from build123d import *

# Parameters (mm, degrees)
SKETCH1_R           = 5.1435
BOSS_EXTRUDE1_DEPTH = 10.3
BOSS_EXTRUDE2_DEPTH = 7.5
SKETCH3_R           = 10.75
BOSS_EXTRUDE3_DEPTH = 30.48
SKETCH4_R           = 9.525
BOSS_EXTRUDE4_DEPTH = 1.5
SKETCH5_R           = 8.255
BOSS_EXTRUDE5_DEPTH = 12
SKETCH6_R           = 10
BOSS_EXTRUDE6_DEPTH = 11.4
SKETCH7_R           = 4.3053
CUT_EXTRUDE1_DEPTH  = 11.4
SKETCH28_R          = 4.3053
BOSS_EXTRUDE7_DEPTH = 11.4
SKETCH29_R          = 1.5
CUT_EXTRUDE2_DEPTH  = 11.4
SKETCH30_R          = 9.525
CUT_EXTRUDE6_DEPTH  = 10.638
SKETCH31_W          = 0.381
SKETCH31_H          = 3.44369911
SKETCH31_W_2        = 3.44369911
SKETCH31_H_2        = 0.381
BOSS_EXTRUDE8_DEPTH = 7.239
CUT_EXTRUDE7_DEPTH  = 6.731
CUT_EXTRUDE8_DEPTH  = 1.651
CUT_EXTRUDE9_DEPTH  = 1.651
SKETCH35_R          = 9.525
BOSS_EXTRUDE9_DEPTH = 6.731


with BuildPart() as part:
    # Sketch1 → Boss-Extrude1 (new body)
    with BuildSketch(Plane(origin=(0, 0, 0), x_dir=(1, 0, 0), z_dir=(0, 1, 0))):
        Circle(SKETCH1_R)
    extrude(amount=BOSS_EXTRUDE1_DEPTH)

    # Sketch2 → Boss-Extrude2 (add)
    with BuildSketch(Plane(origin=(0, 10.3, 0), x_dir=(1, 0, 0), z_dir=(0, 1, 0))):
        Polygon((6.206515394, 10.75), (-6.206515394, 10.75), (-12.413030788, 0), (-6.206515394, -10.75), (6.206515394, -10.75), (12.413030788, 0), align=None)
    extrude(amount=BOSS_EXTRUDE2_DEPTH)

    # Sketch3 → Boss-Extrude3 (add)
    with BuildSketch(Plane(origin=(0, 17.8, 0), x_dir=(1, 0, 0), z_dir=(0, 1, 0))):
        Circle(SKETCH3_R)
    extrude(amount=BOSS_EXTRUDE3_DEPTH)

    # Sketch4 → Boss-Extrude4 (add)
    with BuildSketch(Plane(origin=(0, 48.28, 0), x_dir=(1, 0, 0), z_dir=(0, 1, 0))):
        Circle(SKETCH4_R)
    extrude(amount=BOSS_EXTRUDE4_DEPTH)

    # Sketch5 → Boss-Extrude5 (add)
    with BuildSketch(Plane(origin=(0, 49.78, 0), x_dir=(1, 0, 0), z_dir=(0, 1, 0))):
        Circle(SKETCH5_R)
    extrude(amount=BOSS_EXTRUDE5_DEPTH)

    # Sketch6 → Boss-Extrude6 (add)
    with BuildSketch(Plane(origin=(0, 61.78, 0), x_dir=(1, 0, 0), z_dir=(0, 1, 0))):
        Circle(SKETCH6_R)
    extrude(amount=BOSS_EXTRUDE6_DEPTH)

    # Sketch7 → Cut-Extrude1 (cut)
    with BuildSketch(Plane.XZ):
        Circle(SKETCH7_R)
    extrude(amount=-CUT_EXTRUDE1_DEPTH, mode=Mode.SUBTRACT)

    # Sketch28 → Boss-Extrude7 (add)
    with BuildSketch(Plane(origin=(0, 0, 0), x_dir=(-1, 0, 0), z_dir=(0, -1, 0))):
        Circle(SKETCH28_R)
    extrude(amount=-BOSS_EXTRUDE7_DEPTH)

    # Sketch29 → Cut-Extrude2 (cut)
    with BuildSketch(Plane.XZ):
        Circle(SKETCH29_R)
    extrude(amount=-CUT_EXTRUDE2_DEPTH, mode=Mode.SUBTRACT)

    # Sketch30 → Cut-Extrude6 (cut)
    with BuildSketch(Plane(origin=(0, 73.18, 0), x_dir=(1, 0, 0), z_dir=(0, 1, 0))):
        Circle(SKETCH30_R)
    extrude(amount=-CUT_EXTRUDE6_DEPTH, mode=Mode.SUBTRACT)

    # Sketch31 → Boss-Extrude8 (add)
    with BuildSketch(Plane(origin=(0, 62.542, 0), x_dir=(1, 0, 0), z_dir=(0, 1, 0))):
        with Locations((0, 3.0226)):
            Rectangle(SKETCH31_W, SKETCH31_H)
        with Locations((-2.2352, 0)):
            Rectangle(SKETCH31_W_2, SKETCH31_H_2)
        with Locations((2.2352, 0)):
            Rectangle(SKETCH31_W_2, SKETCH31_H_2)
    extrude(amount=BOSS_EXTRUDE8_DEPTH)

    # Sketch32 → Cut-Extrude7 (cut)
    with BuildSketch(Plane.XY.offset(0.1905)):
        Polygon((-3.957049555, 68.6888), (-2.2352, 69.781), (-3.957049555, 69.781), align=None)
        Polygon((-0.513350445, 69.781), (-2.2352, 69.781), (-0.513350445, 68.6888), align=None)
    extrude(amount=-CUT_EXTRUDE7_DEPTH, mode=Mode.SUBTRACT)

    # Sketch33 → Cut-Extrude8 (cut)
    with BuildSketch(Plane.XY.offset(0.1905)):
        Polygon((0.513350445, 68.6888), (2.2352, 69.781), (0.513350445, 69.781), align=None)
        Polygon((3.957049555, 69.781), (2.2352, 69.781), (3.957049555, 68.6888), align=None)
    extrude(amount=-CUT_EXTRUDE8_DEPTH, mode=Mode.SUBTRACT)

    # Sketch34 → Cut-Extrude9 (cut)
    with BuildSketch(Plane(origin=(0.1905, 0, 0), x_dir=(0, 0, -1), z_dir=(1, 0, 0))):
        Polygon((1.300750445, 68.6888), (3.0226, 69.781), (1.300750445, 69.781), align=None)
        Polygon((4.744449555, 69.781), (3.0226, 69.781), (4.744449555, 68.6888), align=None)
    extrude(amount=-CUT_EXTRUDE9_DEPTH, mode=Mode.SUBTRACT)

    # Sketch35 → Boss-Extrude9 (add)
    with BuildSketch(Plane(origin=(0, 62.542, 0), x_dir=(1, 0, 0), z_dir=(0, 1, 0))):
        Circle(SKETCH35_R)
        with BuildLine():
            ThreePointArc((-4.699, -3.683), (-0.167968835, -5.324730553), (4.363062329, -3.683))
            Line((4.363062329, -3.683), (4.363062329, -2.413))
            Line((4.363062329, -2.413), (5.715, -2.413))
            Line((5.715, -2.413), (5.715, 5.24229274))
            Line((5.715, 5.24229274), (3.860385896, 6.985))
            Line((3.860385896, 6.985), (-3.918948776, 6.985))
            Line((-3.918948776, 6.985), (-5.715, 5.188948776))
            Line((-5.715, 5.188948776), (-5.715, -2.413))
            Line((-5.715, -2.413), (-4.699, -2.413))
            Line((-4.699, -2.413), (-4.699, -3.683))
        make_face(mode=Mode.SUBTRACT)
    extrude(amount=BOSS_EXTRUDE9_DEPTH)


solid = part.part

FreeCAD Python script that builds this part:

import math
import FreeCAD as App
import Part
import Sketcher

V = App.Vector
Q = App.Units.Quantity

doc = App.newDocument("Part")
body = doc.addObject("PartDesign::Body", "Body")

sketch1 = doc.addObject("Sketcher::SketchObject", "Sketch")
body.addObject(sketch1)
sketch1.AttachmentSupport = (doc.XZ_Plane, [""])
sketch1.MapMode = "FlatFace"
sketch1.addGeometry(Part.Circle(V(0, 0, 0), V(0, 0, 1), 5), False)
sketch1.addConstraint([
    Sketcher.Constraint("Coincident", 0, 3, -1, 1),
    Sketcher.Constraint("Diameter", 0, Q("0.405 in")),
])
pad1 = doc.addObject("PartDesign::Pad", "Pad")
body.addObject(pad1)
pad1.Profile = sketch1
pad1.Length = 10.3
pad1.Reversed = True

sketch2 = doc.addObject("Sketcher::SketchObject", "Sketch001")
body.addObject(sketch2)
sketch2.AttachmentSupport = (doc.XZ_Plane, [""])
sketch2.MapMode = "FlatFace"
sketch2.AttachmentOffset = App.Placement(V(0, 0, -10.3), App.Rotation())
sketch2.addGeometry([
    Part.LineSegment(V(6, -11, 0), V(-6, -11, 0)),
    Part.LineSegment(V(-6, -11, 0), V(-12, 0, 0)),
    Part.LineSegment(V(-12, 0, 0), V(-6, 11, 0)),
    Part.LineSegment(V(-6, 11, 0), V(6, 11, 0)),
    Part.LineSegment(V(6, 11, 0), V(12, 0, 0)),
    Part.LineSegment(V(12, 0, 0), V(6, -11, 0)),
], False)
sketch2.addConstraint([
    Sketcher.Constraint("Coincident", 0, 2, 1, 1),
    Sketcher.Constraint("Coincident", 1, 2, 2, 1),
    Sketcher.Constraint("Coincident", 2, 2, 3, 1),
    Sketcher.Constraint("Coincident", 3, 2, 4, 1),
    Sketcher.Constraint("Coincident", 4, 2, 5, 1),
    Sketcher.Constraint("Coincident", 5, 2, 0, 1),
    Sketcher.Constraint("Horizontal", 0),
    Sketcher.Constraint("Horizontal", 3),
    Sketcher.Constraint("Symmetric", 0, 2, 3, 2, -1, 1),
    Sketcher.Constraint("Symmetric", 1, 2, 4, 2, -1, 1),
    Sketcher.Constraint("PointOnObject", 1, 2, -1),
    Sketcher.Constraint("Parallel", 2, 5),
    Sketcher.Constraint("Vertical", 0, 2, 2, 2),
    Sketcher.Constraint("Angle", 1, Q("120 deg")),
    Sketcher.Constraint("DistanceX", 0, 2, 0, 1, Q("12.413031 mm")),
    Sketcher.Constraint("DistanceY", 0, 2, -1, 1, Q("10.75 mm")),
])
pad2 = doc.addObject("PartDesign::Pad", "Pad001")
body.addObject(pad2)
pad2.Profile = sketch2
pad2.Length = 7.5
pad2.Reversed = True

sketch3 = doc.addObject("Sketcher::SketchObject", "Sketch002")
body.addObject(sketch3)
sketch3.AttachmentSupport = (doc.XZ_Plane, [""])
sketch3.MapMode = "FlatFace"
sketch3.AttachmentOffset = App.Placement(V(0, 0, -17.8), App.Rotation())
sketch3.addGeometry(Part.Circle(V(0, 0, 0), V(0, 0, 1), 11), False)
sketch3.addConstraint([
    Sketcher.Constraint("Coincident", 0, 3, -1, 1),
    Sketcher.Constraint("Diameter", 0, Q("21.5 mm")),
])
pad3 = doc.addObject("PartDesign::Pad", "Pad002")
body.addObject(pad3)
pad3.Profile = sketch3
pad3.Length = Q("1.2 in")
pad3.Reversed = True

sketch4 = doc.addObject("Sketcher::SketchObject", "Sketch003")
body.addObject(sketch4)
sketch4.AttachmentSupport = (doc.XZ_Plane, [""])
sketch4.MapMode = "FlatFace"
sketch4.AttachmentOffset = App.Placement(V(0, 0, -48.28), App.Rotation())
sketch4.addGeometry(Part.Circle(V(0, 0, 0), V(0, 0, 1), 10), False)
sketch4.addConstraint([
    Sketcher.Constraint("Coincident", 0, 3, -1, 1),
    Sketcher.Constraint("Diameter", 0, Q("0.75 in")),
])
pad4 = doc.addObject("PartDesign::Pad", "Pad003")
body.addObject(pad4)
pad4.Profile = sketch4
pad4.Length = 1.5
pad4.Reversed = True

sketch5 = doc.addObject("Sketcher::SketchObject", "Sketch004")
body.addObject(sketch5)
sketch5.AttachmentSupport = (doc.XZ_Plane, [""])
sketch5.MapMode = "FlatFace"
sketch5.AttachmentOffset = App.Placement(V(0, 0, -49.78), App.Rotation())
sketch5.addGeometry(Part.Circle(V(0, 0, 0), V(0, 0, 1), 8), False)
sketch5.addConstraint([
    Sketcher.Constraint("Coincident", 0, 3, -1, 1),
    Sketcher.Constraint("Diameter", 0, Q("0.65 in")),
])
pad5 = doc.addObject("PartDesign::Pad", "Pad004")
body.addObject(pad5)
pad5.Profile = sketch5
pad5.Length = 12
pad5.Reversed = True

sketch6 = doc.addObject("Sketcher::SketchObject", "Sketch005")
body.addObject(sketch6)
sketch6.AttachmentSupport = (doc.XZ_Plane, [""])
sketch6.MapMode = "FlatFace"
sketch6.AttachmentOffset = App.Placement(V(0, 0, -61.78), App.Rotation())
sketch6.addGeometry(Part.Circle(V(0, 0, 0), V(0, 0, 1), 10), False)
sketch6.addConstraint([
    Sketcher.Constraint("Coincident", 0, 3, -1, 1),
    Sketcher.Constraint("Diameter", 0, Q("20 mm")),
])
pad6 = doc.addObject("PartDesign::Pad", "Pad005")
body.addObject(pad6)
pad6.Profile = sketch6
pad6.Length = 11.4
pad6.Reversed = True

sketch7 = doc.addObject("Sketcher::SketchObject", "Sketch006")
body.addObject(sketch7)
sketch7.AttachmentSupport = (doc.XZ_Plane, [""])
sketch7.MapMode = "FlatFace"
sketch7.addGeometry(Part.Circle(V(0, 0, 0), V(0, 0, 1), 4.3), False)
sketch7.addConstraint([
    Sketcher.Constraint("Coincident", 0, 3, -1, 1),
    Sketcher.Constraint("Diameter", 0, Q("0.339 in")),
])
pocket1 = doc.addObject("PartDesign::Pocket", "Pocket")
body.addObject(pocket1)
pocket1.Profile = sketch7
pocket1.Length = 11.4

sketch8 = doc.addObject("Sketcher::SketchObject", "Sketch007")
body.addObject(sketch8)
sketch8.AttachmentSupport = (doc.XZ_Plane, [""])
sketch8.MapMode = "FlatFace"
sketch8.addGeometry(Part.Circle(V(0, 0, 0), V(0, 0, 1), 4.3), False)
sketch8.addConstraint([
    Sketcher.Constraint("Coincident", 0, 3, -1, 1),
    Sketcher.Constraint("Diameter", 0, Q("0.339 in")),
])
pad7 = doc.addObject("PartDesign::Pad", "Pad006")
body.addObject(pad7)
pad7.Profile = sketch8
pad7.Length = 11.4
pad7.Reversed = True

sketch9 = doc.addObject("Sketcher::SketchObject", "Sketch008")
body.addObject(sketch9)
sketch9.AttachmentSupport = (doc.XZ_Plane, [""])
sketch9.MapMode = "FlatFace"
sketch9.addGeometry(Part.Circle(V(0, 0, 0), V(0, 0, 1), 1.5), False)
sketch9.addConstraint([
    Sketcher.Constraint("Coincident", 0, 3, -1, 1),
    Sketcher.Constraint("Diameter", 0, Q("3 mm")),
])
pocket2 = doc.addObject("PartDesign::Pocket", "Pocket001")
body.addObject(pocket2)
pocket2.Profile = sketch9
pocket2.Length = 11.4

sketch10 = doc.addObject("Sketcher::SketchObject", "Sketch009")
body.addObject(sketch10)
sketch10.AttachmentSupport = (doc.XZ_Plane, [""])
sketch10.MapMode = "FlatFace"
sketch10.AttachmentOffset = App.Placement(V(0, 0, -73.18), App.Rotation())
sketch10.addGeometry(Part.Circle(V(0, 0, 0), V(0, 0, 1), 10), False)
sketch10.addConstraint([
    Sketcher.Constraint("Coincident", 0, 3, -1, 1),
    Sketcher.Constraint("Diameter", 0, Q("0.75 in")),
])
pocket3 = doc.addObject("PartDesign::Pocket", "Pocket002")
body.addObject(pocket3)
pocket3.Profile = sketch10
pocket3.Length = 10.638
pocket3.Reversed = True

sketch11 = doc.addObject("Sketcher::SketchObject", "Sketch010")
body.addObject(sketch11)
sketch11.AttachmentSupport = (doc.XZ_Plane, [""])
sketch11.MapMode = "FlatFace"
sketch11.AttachmentOffset = App.Placement(V(0, 0, -62.542), App.Rotation())
sketch11.addGeometry([
    Part.LineSegment(V(-0.19, -4.74, 0), V(-0.19, -1.3, 0)),
    Part.LineSegment(V(-0.19, -1.3, 0), V(0.19, -1.3, 0)),
    Part.LineSegment(V(0.19, -1.3, 0), V(0.19, -4.74, 0)),
    Part.LineSegment(V(0.19, -4.74, 0), V(-0.19, -4.74, 0)),
    Part.LineSegment(V(-3.96, -0.19, 0), V(-3.96, 0.19, 0)),
    Part.LineSegment(V(-3.96, 0.19, 0), V(-0.51, 0.19, 0)),
    Part.LineSegment(V(-0.51, 0.19, 0), V(-0.51, -0.19, 0)),
    Part.LineSegment(V(-0.51, -0.19, 0), V(-3.96, -0.19, 0)),
    Part.LineSegment(V(0.51, -0.19, 0), V(0.51, 0.19, 0)),
    Part.LineSegment(V(0.51, 0.19, 0), V(3.96, 0.19, 0)),
    Part.LineSegment(V(3.96, 0.19, 0), V(3.96, -0.19, 0)),
    Part.LineSegment(V(3.96, -0.19, 0), V(0.51, -0.19, 0)),
], False)
sketch11.addConstraint([
    Sketcher.Constraint("Coincident", 0, 2, 1, 1),
    Sketcher.Constraint("Coincident", 1, 2, 2, 1),
    Sketcher.Constraint("Coincident", 2, 2, 3, 1),
    Sketcher.Constraint("Coincident", 3, 2, 0, 1),
    Sketcher.Constraint("Coincident", 4, 2, 5, 1),
    Sketcher.Constraint("Coincident", 5, 2, 6, 1),
    Sketcher.Constraint("Coincident", 6, 2, 7, 1),
    Sketcher.Constraint("Coincident", 7, 2, 4, 1),
    Sketcher.Constraint("Coincident", 8, 2, 9, 1),
    Sketcher.Constraint("Coincident", 9, 2, 10, 1),
    Sketcher.Constraint("Coincident", 10, 2, 11, 1),
    Sketcher.Constraint("Coincident", 11, 2, 8, 1),
    Sketcher.Constraint("Vertical", 0),
    Sketcher.Constraint("Horizontal", 1),
    Sketcher.Constraint("Vertical", 2),
    Sketcher.Constraint("Horizontal", 3),
    Sketcher.Constraint("Vertical", 4),
    Sketcher.Constraint("Horizontal", 5),
    Sketcher.Constraint("Vertical", 6),
    Sketcher.Constraint("Horizontal", 7),
    Sketcher.Constraint("Vertical", 8),
    Sketcher.Constraint("Horizontal", 9),
    Sketcher.Constraint("Vertical", 10),
    Sketcher.Constraint("Horizontal", 11),
    Sketcher.Constraint("Symmetric", 6, 2, 8, 2, -1, 1),
    Sketcher.Constraint("Symmetric", 4, 2, 10, 2, -1, 1),
    Sketcher.Constraint("Horizontal", 5, 2, 8, 2),
    Sketcher.Constraint("Equal", 11, 0),
    Sketcher.Constraint("Equal", 3, 4),
    Sketcher.Constraint("DistanceX", 1, 1, 1, 2, Q("0.015 in")),
    Sketcher.Constraint("DistanceX", 4, 2, 8, 2, Q("0.176 in")),
    Sketcher.Constraint("DistanceX", 5, 1, 5, 2, Q("3.443699 mm")),
    Sketcher.Constraint("DistanceX", 0, 2, -1, 1, Q("0.0075 in")),
    Sketcher.Constraint("DistanceY", 0, 2, -1, 1, Q("1.30075 mm")),
])
pad8 = doc.addObject("PartDesign::Pad", "Pad007")
body.addObject(pad8)
pad8.Profile = sketch11
pad8.Length = Q("0.285 in")
pad8.Reversed = True

sketch12 = doc.addObject("Sketcher::SketchObject", "Sketch011")
body.addObject(sketch12)
sketch12.AttachmentSupport = (doc.XY_Plane, [""])
sketch12.MapMode = "FlatFace"
sketch12.AttachmentOffset = App.Placement(V(0, 0, 0.0075 * 25.4), App.Rotation())
sketch12.addGeometry([
    Part.LineSegment(V(-4, 68.7, 0), V(-2.2, 69.8, 0)),
    Part.LineSegment(V(-2.2, 69.8, 0), V(-4, 69.8, 0)),
    Part.LineSegment(V(-4, 69.8, 0), V(-4, 68.7, 0)),
    Part.LineSegment(V(-0.5, 69.8, 0), V(-2.2, 69.8, 0)),
    Part.LineSegment(V(-2.2, 69.8, 0), V(-0.5, 68.7, 0)),
    Part.LineSegment(V(-0.5, 68.7, 0), V(-0.5, 69.8, 0)),
], False)
sketch12.addConstraint([
    Sketcher.Constraint("Coincident", 0, 2, 1, 1),
    Sketcher.Constraint("Coincident", 1, 2, 2, 1),
    Sketcher.Constraint("Coincident", 2, 2, 0, 1),
    Sketcher.Constraint("Coincident", 3, 2, 4, 1),
    Sketcher.Constraint("Coincident", 4, 2, 5, 1),
    Sketcher.Constraint("Coincident", 5, 2, 3, 1),
    Sketcher.Constraint("Horizontal", 1),
    Sketcher.Constraint("Vertical", 2),
    Sketcher.Constraint("Horizontal", 3),
    Sketcher.Constraint("Vertical", 5),
    Sketcher.Constraint("Coincident", 3, 2, 0, 2),
    Sketcher.Constraint("Horizontal", 2, 2, 4, 2),
    Sketcher.Constraint("Equal", 1, 3),
    Sketcher.Constraint("DistanceY", 2, 2, 2, 1, Q("0.043 in")),
    Sketcher.Constraint("DistanceX", 0, 2, -1, 1, Q("0.088 in")),
    Sketcher.Constraint("DistanceX", 1, 2, 1, 1, Q("1.72185 mm")),
    Sketcher.Constraint("DistanceY", -1, 1, 0, 2, Q("69.781 mm")),
])
pocket4 = doc.addObject("PartDesign::Pocket", "Pocket003")
body.addObject(pocket4)
pocket4.Profile = sketch12
pocket4.Length = Q("0.265 in")

sketch13 = doc.addObject("Sketcher::SketchObject", "Sketch012")
body.addObject(sketch13)
sketch13.AttachmentSupport = (doc.XY_Plane, [""])
sketch13.MapMode = "FlatFace"
sketch13.AttachmentOffset = App.Placement(V(0, 0, 0.0075 * 25.4), App.Rotation())
sketch13.addGeometry([
    Part.LineSegment(V(0.5, 68.7, 0), V(2.2, 69.8, 0)),
    Part.LineSegment(V(2.2, 69.8, 0), V(0.5, 69.8, 0)),
    Part.LineSegment(V(0.5, 69.8, 0), V(0.5, 68.7, 0)),
    Part.LineSegment(V(4, 69.8, 0), V(2.2, 69.8, 0)),
    Part.LineSegment(V(2.2, 69.8, 0), V(4, 68.7, 0)),
    Part.LineSegment(V(4, 68.7, 0), V(4, 69.8, 0)),
], False)
sketch13.addConstraint([
    Sketcher.Constraint("Coincident", 0, 2, 1, 1),
    Sketcher.Constraint("Coincident", 1, 2, 2, 1),
    Sketcher.Constraint("Coincident", 2, 2, 0, 1),
    Sketcher.Constraint("Coincident", 3, 2, 4, 1),
    Sketcher.Constraint("Coincident", 4, 2, 5, 1),
    Sketcher.Constraint("Coincident", 5, 2, 3, 1),
    Sketcher.Constraint("Horizontal", 1),
    Sketcher.Constraint("Vertical", 2),
    Sketcher.Constraint("Horizontal", 3),
    Sketcher.Constraint("Vertical", 5),
    Sketcher.Constraint("Coincident", 3, 2, 0, 2),
    Sketcher.Constraint("Horizontal", 2, 2, 4, 2),
    Sketcher.Constraint("Equal", 1, 3),
    Sketcher.Constraint("DistanceY", 2, 2, 2, 1, Q("0.043 in")),
    Sketcher.Constraint("DistanceX", -1, 1, 0, 2, Q("0.088 in")),
    Sketcher.Constraint("DistanceX", 1, 2, 1, 1, Q("1.72185 mm")),
    Sketcher.Constraint("DistanceY", -1, 1, 0, 2, Q("69.781 mm")),
])
pocket5 = doc.addObject("PartDesign::Pocket", "Pocket004")
body.addObject(pocket5)
pocket5.Profile = sketch13
pocket5.Length = Q("0.065 in")

sketch14 = doc.addObject("Sketcher::SketchObject", "Sketch013")
body.addObject(sketch14)
sketch14.AttachmentSupport = (doc.YZ_Plane, [""])
sketch14.MapMode = "FlatFace"
sketch14.AttachmentOffset = App.Placement(V(0, 0, 0.0075 * 25.4), App.Rotation())
sketch14.addGeometry([
    Part.LineSegment(V(68.7, -1.3, 0), V(69.8, -3, 0)),
    Part.LineSegment(V(69.8, -3, 0), V(69.8, -1.3, 0)),
    Part.LineSegment(V(69.8, -1.3, 0), V(68.7, -1.3, 0)),
    Part.LineSegment(V(69.8, -4.7, 0), V(69.8, -3, 0)),
    Part.LineSegment(V(69.8, -3, 0), V(68.7, -4.7, 0)),
    Part.LineSegment(V(68.7, -4.7, 0), V(69.8, -4.7, 0)),
], False)
sketch14.addConstraint([
    Sketcher.Constraint("Coincident", 0, 2, 1, 1),
    Sketcher.Constraint("Coincident", 1, 2, 2, 1),
    Sketcher.Constraint("Coincident", 2, 2, 0, 1),
    Sketcher.Constraint("Coincident", 3, 2, 4, 1),
    Sketcher.Constraint("Coincident", 4, 2, 5, 1),
    Sketcher.Constraint("Coincident", 5, 2, 3, 1),
    Sketcher.Constraint("Vertical", 1),
    Sketcher.Constraint("Horizontal", 2),
    Sketcher.Constraint("Vertical", 3),
    Sketcher.Constraint("Horizontal", 5),
    Sketcher.Constraint("Coincident", 3, 2, 0, 2),
    Sketcher.Constraint("Vertical", 2, 2, 4, 2),
    Sketcher.Constraint("Equal", 1, 3),
    Sketcher.Constraint("DistanceX", 2, 2, 2, 1, Q("0.043 in")),
    Sketcher.Constraint("DistanceY", 0, 2, -1, 1, Q("0.119 in")),
    Sketcher.Constraint("DistanceY", 1, 1, 1, 2, Q("1.72185 mm")),
    Sketcher.Constraint("DistanceX", -1, 1, 0, 2, Q("69.781 mm")),
])
pocket6 = doc.addObject("PartDesign::Pocket", "Pocket005")
body.addObject(pocket6)
pocket6.Profile = sketch14
pocket6.Length = Q("0.065 in")

sketch15 = doc.addObject("Sketcher::SketchObject", "Sketch014")
body.addObject(sketch15)
sketch15.AttachmentSupport = (doc.XZ_Plane, [""])
sketch15.MapMode = "FlatFace"
sketch15.AttachmentOffset = App.Placement(V(0, 0, -62.542), App.Rotation())
sketch15.addGeometry([
    Part.Circle(V(0, 0, 0), V(0, 0, 1), 9.5),
    Part.ArcOfCircle(Part.Circle(V(-0.2, -1.7, 0), V(0, 0, 1), 7.1), math.radians(50), math.radians(130)),
    Part.LineSegment(V(-4.7, 3.7, 0), V(-4.7, 2.4, 0)),
    Part.LineSegment(V(-4.7, 2.4, 0), V(-5.7, 2.4, 0)),
    Part.LineSegment(V(-5.7, 2.4, 0), V(-5.7, -5.2, 0)),
    Part.LineSegment(V(-5.7, -5.2, 0), V(-3.9, -7, 0)),
    Part.LineSegment(V(-3.9, -7, 0), V(3.9, -7, 0)),
    Part.LineSegment(V(3.9, -7, 0), V(5.7, -5.2, 0)),
    Part.LineSegment(V(5.7, -5.2, 0), V(5.7, 2.4, 0)),
    Part.LineSegment(V(5.7, 2.4, 0), V(4.4, 2.4, 0)),
    Part.LineSegment(V(4.4, 2.4, 0), V(4.4, 3.7, 0)),
], False)
sketch15.addConstraint([
    Sketcher.Constraint("Coincident", 1, 2, 2, 1),
    Sketcher.Constraint("Coincident", 2, 2, 3, 1),
    Sketcher.Constraint("Coincident", 3, 2, 4, 1),
    Sketcher.Constraint("Coincident", 4, 2, 5, 1),
    Sketcher.Constraint("Coincident", 5, 2, 6, 1),
    Sketcher.Constraint("Coincident", 6, 2, 7, 1),
    Sketcher.Constraint("Coincident", 7, 2, 8, 1),
    Sketcher.Constraint("Coincident", 8, 2, 9, 1),
    Sketcher.Constraint("Coincident", 9, 2, 10, 1),
    Sketcher.Constraint("Coincident", 10, 2, 1, 1),
    Sketcher.Constraint("Vertical", 2),
    Sketcher.Constraint("Horizontal", 3),
    Sketcher.Constraint("Vertical", 4),
    Sketcher.Constraint("Horizontal", 6),
    Sketcher.Constraint("Vertical", 8),
    Sketcher.Constraint("Horizontal", 9),
    Sketcher.Constraint("Vertical", 10),
    Sketcher.Constraint("Coincident", 0, 3, -1, 1),
    Sketcher.Constraint("Symmetric", 3, 2, 8, 2, -2),
    Sketcher.Constraint("Horizontal", 1, 2, 10, 2),
    Sketcher.Constraint("Diameter", 0, Q("0.75 in")),
    Sketcher.Constraint("Angle", 5, Q("-45 deg")),
    Sketcher.Constraint("Distance", 5, Q("0.1 in")),
    Sketcher.Constraint("DistanceX", 3, 2, 3, 1, Q("0.04 in")),
    Sketcher.Constraint("DistanceY", 2, 2, 2, 1, Q("0.05 in")),
    Sketcher.Constraint("DistanceY", 5, 2, 2, 2, Q("0.37 in")),
    Sketcher.Constraint("DistanceX", 4, 2, 7, 2, Q("0.45 in")),
    Sketcher.Constraint("DistanceY", -1, 1, 1, 2, Q("0.145 in")),
    Sketcher.Constraint("Radius", 1, Q("7.073488 mm")),
    Sketcher.Constraint("DistanceY", 7, 2, 4, 2, Q("0.0021002 in")),
    Sketcher.Constraint("Distance", 7, Q("2.544921 mm")),
    Sketcher.Constraint("DistanceX", 9, 2, 9, 1, Q("1.351938 mm")),
])
pad9 = doc.addObject("PartDesign::Pad", "Pad008")
body.addObject(pad9)
pad9.Profile = sketch15
pad9.Length = Q("0.265 in")
pad9.Reversed = True

doc.recompute()
